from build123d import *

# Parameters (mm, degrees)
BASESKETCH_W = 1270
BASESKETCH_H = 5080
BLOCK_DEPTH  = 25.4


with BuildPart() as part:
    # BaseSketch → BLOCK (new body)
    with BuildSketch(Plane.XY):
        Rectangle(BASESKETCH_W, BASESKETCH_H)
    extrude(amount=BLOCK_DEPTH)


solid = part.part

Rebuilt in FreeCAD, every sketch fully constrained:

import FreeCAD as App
import Part
import Sketcher
Q = App.Units.Quantity

doc = App.newDocument("Part")
body = doc.addObject("PartDesign::Body", "Body")

sketch1 = body.newObject("Sketcher::SketchObject", "Sketch")
sketch1.AttachmentSupport = (doc.getObject("XY_Plane"), [""])
sketch1.MapMode = "FlatFace"
sketch1.addGeometry([
    Part.LineSegment(App.Vector(-635, 2540, 0), App.Vector(-635, -2540, 0)),
    Part.LineSegment(App.Vector(-635, -2540, 0), App.Vector(635, -2540, 0)),
    Part.LineSegment(App.Vector(635, -2540, 0), App.Vector(635, 2540, 0)),
    Part.LineSegment(App.Vector(635, 2540, 0), App.Vector(-635, 2540, 0)),
], False)
sketch1.addConstraint([
    Sketcher.Constraint("Coincident", 0, 2, 1, 1),
    Sketcher.Constraint("Coincident", 1, 2, 2, 1),
    Sketcher.Constraint("Coincident", 2, 2, 3, 1),
    Sketcher.Constraint("Coincident", 3, 2, 0, 1),
    Sketcher.Constraint("Vertical", 0),
    Sketcher.Constraint("Horizontal", 1),
    Sketcher.Constraint("Vertical", 2),
    Sketcher.Constraint("Horizontal", 3),
    Sketcher.Constraint("Symmetric", 0, 2, 2, 2, -1, 1),
    Sketcher.Constraint("DistanceX", 1, 1, 1, 2, Q("50 in")),
    Sketcher.Constraint("DistanceY", 0, 2, 0, 1, Q("200 in")),
])
pad1 = body.newObject("PartDesign::Pad", "Pad")
pad1.Profile = sketch1
pad1.Length = Q("1 in")

doc.recompute()
